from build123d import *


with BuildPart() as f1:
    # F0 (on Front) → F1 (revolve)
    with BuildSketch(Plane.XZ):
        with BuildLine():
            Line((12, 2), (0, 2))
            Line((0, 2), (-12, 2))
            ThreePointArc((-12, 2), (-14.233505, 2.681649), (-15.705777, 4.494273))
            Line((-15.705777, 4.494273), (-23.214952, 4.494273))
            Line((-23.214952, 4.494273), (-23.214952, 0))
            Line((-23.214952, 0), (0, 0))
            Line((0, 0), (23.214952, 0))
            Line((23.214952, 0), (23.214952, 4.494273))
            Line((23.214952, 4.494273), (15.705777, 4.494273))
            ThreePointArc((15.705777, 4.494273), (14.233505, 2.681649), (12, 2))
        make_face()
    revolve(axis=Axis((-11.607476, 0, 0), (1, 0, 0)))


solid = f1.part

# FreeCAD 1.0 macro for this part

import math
import FreeCAD as App
import Part
import Sketcher

V = App.Vector
Q = App.Units.Quantity

doc = App.newDocument("Part")
params = doc.addObject("Spreadsheet::Sheet", "Params")
for row, (alias, value) in enumerate([
    ("sketch1_radius", "4 mm"),
    ("sketch1_width", "24 mm"),
    ("revolution_angle", "360 deg"),
], start=1):
    params.set(f"A{row}", alias)
    params.set(f"B{row}", "=" + value)
    params.setAlias(f"B{row}", alias)

body = doc.addObject("PartDesign::Body", "Body")

sketch1 = body.newObject("Sketcher::SketchObject", "Sketch")
sketch1.AttachmentSupport = (doc.getObject("XZ_Plane"), [""])
sketch1.MapMode = "FlatFace"
sketch1.addGeometry([
    Part.LineSegment(V(12, 2, 0), V(-12, 2, 0)),
    Part.ArcOfCircle(Part.Circle(V(-11.999999, 6, 0), V(0, 0, 1), 4), math.radians(-157.887167), math.radians(-90.000007)),
    Part.LineSegment(V(-15.705777, 4.494273, 0), V(-23.214952, 4.494273, 0)),
    Part.LineSegment(V(-23.214952, 4.494273, 0), V(-23.214952, 0, 0)),
    Part.LineSegment(V(-23.214952, 0, 0), V(23.214952, 0, 0)),
    Part.LineSegment(V(23.214952, 0, 0), V(23.214952, 4.494273, 0)),
    Part.LineSegment(V(23.214952, 4.494273, 0), V(15.705777, 4.494273, 0)),
    Part.ArcOfCircle(Part.Circle(V(11.999999, 6, 0), V(0, 0, 1), 4), math.radians(-89.999993), math.radians(-22.112833)),
], False)
sketch1.addConstraint([
    Sketcher.Constraint("Tangent", 0, 2, 1, 2),
    Sketcher.Constraint("Coincident", 1, 1, 2, 1),
    Sketcher.Constraint("Coincident", 2, 2, 3, 1),
    Sketcher.Constraint("Coincident", 3, 2, 4, 1),
    Sketcher.Constraint("Coincident", 4, 2, 5, 1),
    Sketcher.Constraint("Coincident", 5, 2, 6, 1),
    Sketcher.Constraint("Coincident", 6, 2, 7, 2),
    Sketcher.Constraint("Tangent", 7, 1, 0, 1),
    Sketcher.Constraint("Horizontal", 0),
    Sketcher.Constraint("Horizontal", 2),
    Sketcher.Constraint("Vertical", 3),
    Sketcher.Constraint("Horizontal", 4),
    Sketcher.Constraint("Vertical", 5),
    Sketcher.Constraint("Horizontal", 6),
    Sketcher.Constraint("Equal", 1, 7),
    Sketcher.Constraint("Symmetric", 3, 2, 4, 2, -1, 1),
    Sketcher.Constraint("Symmetric", 1, 1, 6, 2, -2),
    Sketcher.Constraint("Radius", 1, Q("4 mm")),
    Sketcher.Constraint("DistanceX", 0, 2, 0, 1, Q("24 mm")),
    Sketcher.Constraint("DistanceY", -1, 1, 1, 3, Q("6 mm")),
    Sketcher.Constraint("DistanceX", 2, 2, 2, 1, Q("7.509175 mm")),
    Sketcher.Constraint("DistanceX", 4, 1, 4, 2, Q("46.429904 mm")),
])
sketch1.setExpression("Constraints[17]", "Params.sketch1_radius")
sketch1.setExpression("Constraints[18]", "Params.sketch1_width")
revolution = body.newObject("PartDesign::Revolution", "Revolution")
revolution.Profile = sketch1
revolution.ReferenceAxis = (sketch1, ["H_Axis"])
revolution.setExpression("Angle", "Params.revolution_angle")

doc.recompute()
